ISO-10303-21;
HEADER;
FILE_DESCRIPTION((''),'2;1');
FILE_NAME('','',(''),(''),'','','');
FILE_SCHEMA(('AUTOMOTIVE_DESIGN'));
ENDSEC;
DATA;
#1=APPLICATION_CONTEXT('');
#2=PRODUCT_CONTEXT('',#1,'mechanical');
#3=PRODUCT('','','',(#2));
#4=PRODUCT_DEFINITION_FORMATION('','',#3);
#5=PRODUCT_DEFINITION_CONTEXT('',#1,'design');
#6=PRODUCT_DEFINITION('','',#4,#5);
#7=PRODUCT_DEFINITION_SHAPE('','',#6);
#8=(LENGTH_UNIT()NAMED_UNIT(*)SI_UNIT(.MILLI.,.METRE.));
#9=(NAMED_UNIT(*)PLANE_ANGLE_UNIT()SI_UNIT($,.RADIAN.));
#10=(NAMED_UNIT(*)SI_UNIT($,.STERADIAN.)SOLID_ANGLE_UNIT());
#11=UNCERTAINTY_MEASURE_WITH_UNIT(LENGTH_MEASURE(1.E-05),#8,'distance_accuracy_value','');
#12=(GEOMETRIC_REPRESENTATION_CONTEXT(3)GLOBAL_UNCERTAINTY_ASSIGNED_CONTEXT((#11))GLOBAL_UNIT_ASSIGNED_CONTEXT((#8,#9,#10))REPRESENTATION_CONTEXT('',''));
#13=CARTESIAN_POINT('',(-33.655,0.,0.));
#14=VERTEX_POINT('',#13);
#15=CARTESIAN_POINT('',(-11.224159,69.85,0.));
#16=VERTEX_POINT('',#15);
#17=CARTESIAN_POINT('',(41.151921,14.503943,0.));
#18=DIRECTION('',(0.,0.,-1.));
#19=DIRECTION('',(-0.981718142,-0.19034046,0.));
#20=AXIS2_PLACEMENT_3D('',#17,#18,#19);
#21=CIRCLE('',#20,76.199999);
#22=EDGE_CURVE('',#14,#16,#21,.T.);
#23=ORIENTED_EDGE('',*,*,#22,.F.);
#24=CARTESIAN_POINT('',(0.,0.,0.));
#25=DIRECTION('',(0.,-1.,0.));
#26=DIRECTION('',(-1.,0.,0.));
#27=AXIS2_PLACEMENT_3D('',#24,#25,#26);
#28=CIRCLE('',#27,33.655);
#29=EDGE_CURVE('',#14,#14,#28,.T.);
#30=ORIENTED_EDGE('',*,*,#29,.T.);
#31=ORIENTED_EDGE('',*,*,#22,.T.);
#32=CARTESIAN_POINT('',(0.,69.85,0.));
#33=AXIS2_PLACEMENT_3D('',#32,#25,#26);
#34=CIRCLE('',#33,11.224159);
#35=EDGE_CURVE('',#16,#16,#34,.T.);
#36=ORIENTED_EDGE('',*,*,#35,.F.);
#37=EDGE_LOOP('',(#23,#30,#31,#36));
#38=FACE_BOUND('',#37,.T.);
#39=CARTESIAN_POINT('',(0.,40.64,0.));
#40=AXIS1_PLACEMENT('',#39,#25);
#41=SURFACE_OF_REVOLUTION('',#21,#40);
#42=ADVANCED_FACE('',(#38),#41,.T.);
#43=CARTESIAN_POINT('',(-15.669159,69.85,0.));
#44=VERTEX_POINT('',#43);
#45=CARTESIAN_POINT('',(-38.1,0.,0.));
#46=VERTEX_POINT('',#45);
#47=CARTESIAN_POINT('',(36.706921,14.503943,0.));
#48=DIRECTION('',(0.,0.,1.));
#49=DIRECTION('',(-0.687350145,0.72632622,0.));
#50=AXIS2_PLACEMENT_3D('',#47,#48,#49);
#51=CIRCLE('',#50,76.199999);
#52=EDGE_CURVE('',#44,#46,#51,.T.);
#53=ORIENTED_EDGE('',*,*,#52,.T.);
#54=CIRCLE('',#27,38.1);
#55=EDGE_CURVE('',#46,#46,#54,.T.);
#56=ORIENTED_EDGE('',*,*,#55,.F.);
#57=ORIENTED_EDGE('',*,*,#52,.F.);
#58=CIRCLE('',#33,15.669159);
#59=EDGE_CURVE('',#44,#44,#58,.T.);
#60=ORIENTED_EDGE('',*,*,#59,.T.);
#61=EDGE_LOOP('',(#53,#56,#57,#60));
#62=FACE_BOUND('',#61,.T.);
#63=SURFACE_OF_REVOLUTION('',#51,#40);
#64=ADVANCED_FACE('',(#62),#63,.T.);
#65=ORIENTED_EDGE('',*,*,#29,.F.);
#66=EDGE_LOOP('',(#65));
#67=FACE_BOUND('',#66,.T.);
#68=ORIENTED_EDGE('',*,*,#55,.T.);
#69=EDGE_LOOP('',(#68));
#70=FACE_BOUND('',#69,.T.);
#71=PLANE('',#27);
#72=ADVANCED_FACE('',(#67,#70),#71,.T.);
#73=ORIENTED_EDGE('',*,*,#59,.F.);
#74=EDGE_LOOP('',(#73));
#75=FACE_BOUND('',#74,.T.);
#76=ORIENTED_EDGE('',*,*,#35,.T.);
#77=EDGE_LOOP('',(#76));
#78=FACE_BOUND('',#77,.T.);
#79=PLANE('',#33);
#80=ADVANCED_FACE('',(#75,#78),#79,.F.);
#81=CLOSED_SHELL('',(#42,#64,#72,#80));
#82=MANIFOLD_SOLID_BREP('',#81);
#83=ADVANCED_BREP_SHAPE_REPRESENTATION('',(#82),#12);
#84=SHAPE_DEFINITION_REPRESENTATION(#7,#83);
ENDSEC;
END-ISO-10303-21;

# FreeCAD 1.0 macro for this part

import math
import FreeCAD as App
import Part
import Sketcher
from FreeCAD import Vector
Q = App.Units.Quantity

doc = App.newDocument("Part")
body = doc.addObject("PartDesign::Body", "Body")

# Sketch on XY plane
sketch1 = body.newObject("Sketcher::SketchObject", "Sketch")
sketch1.AttachmentSupport = (doc.getObject("XY_Plane"), [""])
sketch1.MapMode = "FlatFace"
sketch1.addGeometry(Part.LineSegment(Vector(-38.1, 0, 0), Vector(-33.655, 0, 0)), False)
sketch1.addGeometry(Part.ArcOfCircle(Part.Circle(Vector(41.151921, 14.503943, 0), Vector(0, 0, 1), 76.199999), math.radians(133.420714), math.radians(190.972654)), False)
sketch1.addGeometry(Part.LineSegment(Vector(-11.224159, 69.85, 0), Vector(-15.669159, 69.85, 0)), False)
sketch1.addGeometry(Part.ArcOfCircle(Part.Circle(Vector(36.706921, 14.503943, 0), Vector(0, 0, 1), 76.199999), math.radians(133.420714), math.radians(190.972654)), False)
sketch1.addConstraint(Sketcher.Constraint("Coincident", 0, 2, 1, 2))
sketch1.addConstraint(Sketcher.Constraint("Coincident", 1, 1, 2, 1))
sketch1.addConstraint(Sketcher.Constraint("Coincident", 2, 2, 3, 1))
sketch1.addConstraint(Sketcher.Constraint("Coincident", 3, 2, 0, 1))
sketch1.addConstraint(Sketcher.Constraint("Horizontal", 0))
sketch1.addConstraint(Sketcher.Constraint("Horizontal", 2))
sketch1.addConstraint(Sketcher.Constraint("Equal", 1, 3))
sketch1.addConstraint(Sketcher.Constraint("PointOnObject", 0, 2, -1))
sketch1.addConstraint(Sketcher.Constraint("Horizontal", 1, 3, 3, 3))
sketch1.addConstraint(Sketcher.Constraint("Radius", 1, Q("3 in")))
sketch1.addConstraint(Sketcher.Constraint("DistanceX", 3, 2, -1, 1, Q("1.5 in")))
sketch1.addConstraint(Sketcher.Constraint("DistanceX", 0, 1, 0, 2, Q("0.175 in")))
sketch1.addConstraint(Sketcher.Constraint("DistanceY", -1, 1, 1, 1, Q("2.75 in")))
sketch1.addConstraint(Sketcher.Constraint("DistanceX", -1, 1, 1, 3, 41.151921))
revolution = body.newObject("PartDesign::Revolution", "Revolution")
revolution.Profile = sketch1
revolution.ReferenceAxis = (sketch1, ["V_Axis"])
revolution.Angle = 360

doc.recompute()
